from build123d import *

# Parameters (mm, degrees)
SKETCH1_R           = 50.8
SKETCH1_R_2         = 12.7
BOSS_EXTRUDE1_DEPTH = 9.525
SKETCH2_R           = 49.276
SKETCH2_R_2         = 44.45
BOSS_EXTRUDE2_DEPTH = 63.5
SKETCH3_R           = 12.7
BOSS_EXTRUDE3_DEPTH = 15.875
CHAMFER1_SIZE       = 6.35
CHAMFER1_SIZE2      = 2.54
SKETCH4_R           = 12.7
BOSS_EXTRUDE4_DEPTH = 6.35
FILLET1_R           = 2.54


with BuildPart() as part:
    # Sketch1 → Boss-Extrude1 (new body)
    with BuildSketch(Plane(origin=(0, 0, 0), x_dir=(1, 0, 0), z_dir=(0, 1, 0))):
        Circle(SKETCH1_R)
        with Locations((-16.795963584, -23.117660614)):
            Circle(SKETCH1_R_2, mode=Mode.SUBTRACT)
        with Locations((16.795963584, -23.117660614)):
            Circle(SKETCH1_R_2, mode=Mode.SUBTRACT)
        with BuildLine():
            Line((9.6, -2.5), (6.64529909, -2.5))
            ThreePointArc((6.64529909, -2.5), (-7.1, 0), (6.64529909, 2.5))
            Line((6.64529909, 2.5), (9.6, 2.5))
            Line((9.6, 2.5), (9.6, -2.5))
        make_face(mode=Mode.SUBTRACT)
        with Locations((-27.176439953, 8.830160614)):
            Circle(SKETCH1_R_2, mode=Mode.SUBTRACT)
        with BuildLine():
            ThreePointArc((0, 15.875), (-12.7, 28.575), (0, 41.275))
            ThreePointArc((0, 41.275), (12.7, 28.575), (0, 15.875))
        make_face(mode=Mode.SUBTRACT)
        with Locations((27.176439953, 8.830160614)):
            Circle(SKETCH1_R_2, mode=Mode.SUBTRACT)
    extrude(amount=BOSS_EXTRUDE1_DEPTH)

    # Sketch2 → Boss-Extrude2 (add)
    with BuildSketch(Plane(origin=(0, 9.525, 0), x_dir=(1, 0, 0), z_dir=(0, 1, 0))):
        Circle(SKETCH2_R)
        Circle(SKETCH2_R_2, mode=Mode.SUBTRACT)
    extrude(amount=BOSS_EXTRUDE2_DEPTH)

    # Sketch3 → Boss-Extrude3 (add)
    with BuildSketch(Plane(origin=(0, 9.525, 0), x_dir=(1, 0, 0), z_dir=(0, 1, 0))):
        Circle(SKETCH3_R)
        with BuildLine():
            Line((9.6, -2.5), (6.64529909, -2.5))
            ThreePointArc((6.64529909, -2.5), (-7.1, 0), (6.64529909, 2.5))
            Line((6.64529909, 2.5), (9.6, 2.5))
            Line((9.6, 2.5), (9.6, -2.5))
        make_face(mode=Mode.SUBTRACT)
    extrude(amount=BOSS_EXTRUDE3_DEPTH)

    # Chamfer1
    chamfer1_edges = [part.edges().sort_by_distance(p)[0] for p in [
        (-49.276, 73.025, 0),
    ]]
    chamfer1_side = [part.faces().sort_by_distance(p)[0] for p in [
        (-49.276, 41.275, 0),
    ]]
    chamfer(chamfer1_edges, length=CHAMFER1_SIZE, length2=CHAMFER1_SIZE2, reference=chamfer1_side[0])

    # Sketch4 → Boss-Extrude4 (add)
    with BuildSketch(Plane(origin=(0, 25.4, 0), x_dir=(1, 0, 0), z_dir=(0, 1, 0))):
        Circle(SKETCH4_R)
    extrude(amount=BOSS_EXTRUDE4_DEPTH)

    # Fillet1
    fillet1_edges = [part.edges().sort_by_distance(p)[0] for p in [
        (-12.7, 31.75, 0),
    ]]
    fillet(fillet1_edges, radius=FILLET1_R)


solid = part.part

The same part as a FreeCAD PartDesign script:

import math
import FreeCAD as App
import Part
import Sketcher
Q = App.Units.Quantity


def edges_at(feature, points):
    """Names of the edges that pass closest to the given points."""
    edges = feature.Shape.Edges
    near = lambda p: min(range(len(edges)), key=lambda i: edges[i].distToShape(Part.Vertex(*p))[0])
    return sorted({f"Edge{near(p) + 1}" for p in points})

doc = App.newDocument("Part")
body = doc.addObject("PartDesign::Body", "Body")

# Sketch on XZ plane
sketch1 = doc.addObject("Sketcher::SketchObject", "Sketch")
body.addObject(sketch1)
sketch1.AttachmentSupport = (doc.XZ_Plane, [""])
sketch1.MapMode = "FlatFace"
sketch1.addGeometry(Part.Circle(App.Vector(0, 0, 0), App.Vector(0, 0, 1), 50.8), False)
sketch1.addGeometry(Part.Circle(App.Vector(-16.8, 23.1, 0), App.Vector(0, 0, 1), 12.7), False)
sketch1.addGeometry(Part.Circle(App.Vector(16.8, 23.1, 0), App.Vector(0, 0, 1), 12.7), False)
sketch1.addGeometry(Part.LineSegment(App.Vector(9.6, -2.5, 0), App.Vector(9.6, 2.5, 0)), False)
sketch1.addGeometry(Part.LineSegment(App.Vector(9.6, 2.5, 0), App.Vector(6.6, 2.5, 0)), False)
sketch1.addGeometry(Part.ArcOfCircle(Part.Circle(App.Vector(0, 0, 0), App.Vector(0, 0, 1), 7.1), math.radians(21), math.radians(339)), False)
sketch1.addGeometry(Part.LineSegment(App.Vector(6.6, -2.5, 0), App.Vector(9.6, -2.5, 0)), False)
sketch1.addGeometry(Part.Circle(App.Vector(-27.2, -8.8, 0), App.Vector(0, 0, 1), 12.7), False)
sketch1.addGeometry(Part.Circle(App.Vector(27.2, -8.8, 0), App.Vector(0, 0, 1), 12.7), False)
sketch1.addGeometry(Part.Circle(App.Vector(0, -28.6, 0), App.Vector(0, 0, 1), 12.7), False)
sketch1.addConstraint(Sketcher.Constraint("Coincident", 3, 2, 4, 1))
sketch1.addConstraint(Sketcher.Constraint("Coincident", 4, 2, 5, 1))
sketch1.addConstraint(Sketcher.Constraint("Coincident", 5, 2, 6, 1))
sketch1.addConstraint(Sketcher.Constraint("Coincident", 6, 2, 3, 1))
sketch1.addConstraint(Sketcher.Constraint("Vertical", 3))
sketch1.addConstraint(Sketcher.Constraint("Horizontal", 4))
sketch1.addConstraint(Sketcher.Constraint("Horizontal", 6))
sketch1.addConstraint(Sketcher.Constraint("Coincident", 0, 3, -1, 1))
sketch1.addConstraint(Sketcher.Constraint("Coincident", 5, 3, -1, 1))
sketch1.addConstraint(Sketcher.Constraint("Equal", 1, 2))
sketch1.addConstraint(Sketcher.Constraint("Equal", 2, 7))
sketch1.addConstraint(Sketcher.Constraint("Equal", 7, 8))
sketch1.addConstraint(Sketcher.Constraint("Equal", 8, 9))
sketch1.addConstraint(Sketcher.Constraint("Symmetric", 1, 3, 2, 3, -2))
sketch1.addConstraint(Sketcher.Constraint("Symmetric", 7, 3, 8, 3, -2))
sketch1.addConstraint(Sketcher.Constraint("PointOnObject", 9, 3, -2))
sketch1.addConstraint(Sketcher.Constraint("Vertical", 4, 2, 5, 2))
sketch1.addConstraint(Sketcher.Constraint("Diameter", 0, Q("4 in")))
sketch1.addConstraint(Sketcher.Constraint("Diameter", 1, Q("1 in")))
sketch1.addConstraint(Sketcher.Constraint("Radius", 5, Q("7.1 mm")))
sketch1.addConstraint(Sketcher.Constraint("DistanceY", 9, 3, -1, 1, Q("1.125 in")))
sketch1.addConstraint(Sketcher.Constraint("DistanceX", 4, 2, 4, 1, Q("2.954701 mm")))
sketch1.addConstraint(Sketcher.Constraint("DistanceY", 3, 1, 3, 2, Q("5 mm")))
sketch1.addConstraint(Sketcher.Constraint("DistanceY", -1, 1, 1, 3, Q("23.117661 mm")))
sketch1.addConstraint(Sketcher.Constraint("DistanceX", 7, 3, -1, 1, Q("27.17644 mm")))
sketch1.addConstraint(Sketcher.Constraint("DistanceY", 7, 3, -1, 1, Q("8.830161 mm")))
sketch1.addConstraint(Sketcher.Constraint("DistanceX", 1, 3, -1, 1, Q("16.795964 mm")))
pad1 = doc.addObject("PartDesign::Pad", "Pad")
body.addObject(pad1)
pad1.Profile = sketch1
pad1.Length = Q("0.375 in")
pad1.Reversed = True

# Sketch on XZ plane
sketch2 = doc.addObject("Sketcher::SketchObject", "Sketch001")
body.addObject(sketch2)
sketch2.AttachmentSupport = (doc.XZ_Plane, [""])
sketch2.MapMode = "FlatFace"
sketch2.AttachmentOffset = App.Placement(App.Vector(0, 0, -0.375 * 25.4), App.Rotation())
sketch2.addGeometry(Part.Circle(App.Vector(0, 0, 0), App.Vector(0, 0, 1), 49), False)
sketch2.addGeometry(Part.Circle(App.Vector(0, 0, 0), App.Vector(0, 0, 1), 44), False)
sketch2.addConstraint(Sketcher.Constraint("Coincident", 0, 3, -1, 1))
sketch2.addConstraint(Sketcher.Constraint("Coincident", 1, 3, -1, 1))
sketch2.addConstraint(Sketcher.Constraint("Diameter", 1, Q("3.5 in")))
sketch2.addConstraint(Sketcher.Constraint("Diameter", 0, Q("3.88 in")))
pad2 = doc.addObject("PartDesign::Pad", "Pad001")
body.addObject(pad2)
pad2.Profile = sketch2
pad2.Length = Q("2.5 in")
pad2.Reversed = True

# Sketch on XZ plane
sketch3 = doc.addObject("Sketcher::SketchObject", "Sketch002")
body.addObject(sketch3)
sketch3.AttachmentSupport = (doc.XZ_Plane, [""])
sketch3.MapMode = "FlatFace"
sketch3.AttachmentOffset = App.Placement(App.Vector(0, 0, -0.375 * 25.4), App.Rotation())
sketch3.addGeometry(Part.Circle(App.Vector(0, 0, 0), App.Vector(0, 0, 1), 12.7), False)
sketch3.addGeometry(Part.LineSegment(App.Vector(9.6, -2.5, 0), App.Vector(9.6, 2.5, 0)), False)
sketch3.addGeometry(Part.LineSegment(App.Vector(9.6, 2.5, 0), App.Vector(6.6, 2.5, 0)), False)
sketch3.addGeometry(Part.ArcOfCircle(Part.Circle(App.Vector(0, 0, 0), App.Vector(0, 0, 1), 7.1), math.radians(21), math.radians(339)), False)
sketch3.addGeometry(Part.LineSegment(App.Vector(6.6, -2.5, 0), App.Vector(9.6, -2.5, 0)), False)
sketch3.addConstraint(Sketcher.Constraint("Coincident", 1, 2, 2, 1))
sketch3.addConstraint(Sketcher.Constraint("Coincident", 2, 2, 3, 1))
sketch3.addConstraint(Sketcher.Constraint("Coincident", 3, 2, 4, 1))
sketch3.addConstraint(Sketcher.Constraint("Coincident", 4, 2, 1, 1))
sketch3.addConstraint(Sketcher.Constraint("Vertical", 1))
sketch3.addConstraint(Sketcher.Constraint("Horizontal", 2))
sketch3.addConstraint(Sketcher.Constraint("Horizontal", 4))
sketch3.addConstraint(Sketcher.Constraint("Coincident", 0, 3, -1, 1))
sketch3.addConstraint(Sketcher.Constraint("Coincident", 3, 3, -1, 1))
sketch3.addConstraint(Sketcher.Constraint("Vertical", 2, 2, 3, 2))
sketch3.addConstraint(Sketcher.Constraint("Diameter", 0, Q("1 in")))
sketch3.addConstraint(Sketcher.Constraint("Radius", 3, Q("7.1 mm")))
sketch3.addConstraint(Sketcher.Constraint("DistanceX", 2, 2, 2, 1, Q("2.954701 mm")))
sketch3.addConstraint(Sketcher.Constraint("DistanceY", 1, 1, 1, 2, Q("5 mm")))
pad3 = doc.addObject("PartDesign::Pad", "Pad002")
body.addObject(pad3)
pad3.Profile = sketch3
pad3.Length = Q("0.625 in")
pad3.Reversed = True
doc.recompute()

chamfer = doc.addObject("PartDesign::Chamfer", "Chamfer")
body.addObject(chamfer)
chamfer.Base = (pad3, edges_at(pad3, [(-49.276, 73.025, 0)]))
chamfer.ChamferType = "Two distances"
chamfer.Size = Q("0.25 in")
chamfer.Size2 = Q("0.1 in")

# Sketch on XZ plane
sketch4 = doc.addObject("Sketcher::SketchObject", "Sketch003")
body.addObject(sketch4)
sketch4.AttachmentSupport = (doc.XZ_Plane, [""])
sketch4.MapMode = "FlatFace"
sketch4.AttachmentOffset = App.Placement(App.Vector(0, 0, -1 * 25.4), App.Rotation())
sketch4.addGeometry(Part.Circle(App.Vector(0, 0, 0), App.Vector(0, 0, 1), 13), False)
sketch4.addConstraint(Sketcher.Constraint("Coincident", 0, 3, -1, 1))
sketch4.addConstraint(Sketcher.Constraint("Diameter", 0, Q("1 in")))
pad4 = doc.addObject("PartDesign::Pad", "Pad003")
body.addObject(pad4)
pad4.Profile = sketch4
pad4.Length = Q("0.25 in")
pad4.Reversed = True
doc.recompute()

fillet = doc.addObject("PartDesign::Fillet", "Fillet")
body.addObject(fillet)
fillet.Base = (pad4, edges_at(pad4, [(-12.7, 31.75, 0)]))
fillet.Radius = Q("0.1 in")

doc.recompute()
